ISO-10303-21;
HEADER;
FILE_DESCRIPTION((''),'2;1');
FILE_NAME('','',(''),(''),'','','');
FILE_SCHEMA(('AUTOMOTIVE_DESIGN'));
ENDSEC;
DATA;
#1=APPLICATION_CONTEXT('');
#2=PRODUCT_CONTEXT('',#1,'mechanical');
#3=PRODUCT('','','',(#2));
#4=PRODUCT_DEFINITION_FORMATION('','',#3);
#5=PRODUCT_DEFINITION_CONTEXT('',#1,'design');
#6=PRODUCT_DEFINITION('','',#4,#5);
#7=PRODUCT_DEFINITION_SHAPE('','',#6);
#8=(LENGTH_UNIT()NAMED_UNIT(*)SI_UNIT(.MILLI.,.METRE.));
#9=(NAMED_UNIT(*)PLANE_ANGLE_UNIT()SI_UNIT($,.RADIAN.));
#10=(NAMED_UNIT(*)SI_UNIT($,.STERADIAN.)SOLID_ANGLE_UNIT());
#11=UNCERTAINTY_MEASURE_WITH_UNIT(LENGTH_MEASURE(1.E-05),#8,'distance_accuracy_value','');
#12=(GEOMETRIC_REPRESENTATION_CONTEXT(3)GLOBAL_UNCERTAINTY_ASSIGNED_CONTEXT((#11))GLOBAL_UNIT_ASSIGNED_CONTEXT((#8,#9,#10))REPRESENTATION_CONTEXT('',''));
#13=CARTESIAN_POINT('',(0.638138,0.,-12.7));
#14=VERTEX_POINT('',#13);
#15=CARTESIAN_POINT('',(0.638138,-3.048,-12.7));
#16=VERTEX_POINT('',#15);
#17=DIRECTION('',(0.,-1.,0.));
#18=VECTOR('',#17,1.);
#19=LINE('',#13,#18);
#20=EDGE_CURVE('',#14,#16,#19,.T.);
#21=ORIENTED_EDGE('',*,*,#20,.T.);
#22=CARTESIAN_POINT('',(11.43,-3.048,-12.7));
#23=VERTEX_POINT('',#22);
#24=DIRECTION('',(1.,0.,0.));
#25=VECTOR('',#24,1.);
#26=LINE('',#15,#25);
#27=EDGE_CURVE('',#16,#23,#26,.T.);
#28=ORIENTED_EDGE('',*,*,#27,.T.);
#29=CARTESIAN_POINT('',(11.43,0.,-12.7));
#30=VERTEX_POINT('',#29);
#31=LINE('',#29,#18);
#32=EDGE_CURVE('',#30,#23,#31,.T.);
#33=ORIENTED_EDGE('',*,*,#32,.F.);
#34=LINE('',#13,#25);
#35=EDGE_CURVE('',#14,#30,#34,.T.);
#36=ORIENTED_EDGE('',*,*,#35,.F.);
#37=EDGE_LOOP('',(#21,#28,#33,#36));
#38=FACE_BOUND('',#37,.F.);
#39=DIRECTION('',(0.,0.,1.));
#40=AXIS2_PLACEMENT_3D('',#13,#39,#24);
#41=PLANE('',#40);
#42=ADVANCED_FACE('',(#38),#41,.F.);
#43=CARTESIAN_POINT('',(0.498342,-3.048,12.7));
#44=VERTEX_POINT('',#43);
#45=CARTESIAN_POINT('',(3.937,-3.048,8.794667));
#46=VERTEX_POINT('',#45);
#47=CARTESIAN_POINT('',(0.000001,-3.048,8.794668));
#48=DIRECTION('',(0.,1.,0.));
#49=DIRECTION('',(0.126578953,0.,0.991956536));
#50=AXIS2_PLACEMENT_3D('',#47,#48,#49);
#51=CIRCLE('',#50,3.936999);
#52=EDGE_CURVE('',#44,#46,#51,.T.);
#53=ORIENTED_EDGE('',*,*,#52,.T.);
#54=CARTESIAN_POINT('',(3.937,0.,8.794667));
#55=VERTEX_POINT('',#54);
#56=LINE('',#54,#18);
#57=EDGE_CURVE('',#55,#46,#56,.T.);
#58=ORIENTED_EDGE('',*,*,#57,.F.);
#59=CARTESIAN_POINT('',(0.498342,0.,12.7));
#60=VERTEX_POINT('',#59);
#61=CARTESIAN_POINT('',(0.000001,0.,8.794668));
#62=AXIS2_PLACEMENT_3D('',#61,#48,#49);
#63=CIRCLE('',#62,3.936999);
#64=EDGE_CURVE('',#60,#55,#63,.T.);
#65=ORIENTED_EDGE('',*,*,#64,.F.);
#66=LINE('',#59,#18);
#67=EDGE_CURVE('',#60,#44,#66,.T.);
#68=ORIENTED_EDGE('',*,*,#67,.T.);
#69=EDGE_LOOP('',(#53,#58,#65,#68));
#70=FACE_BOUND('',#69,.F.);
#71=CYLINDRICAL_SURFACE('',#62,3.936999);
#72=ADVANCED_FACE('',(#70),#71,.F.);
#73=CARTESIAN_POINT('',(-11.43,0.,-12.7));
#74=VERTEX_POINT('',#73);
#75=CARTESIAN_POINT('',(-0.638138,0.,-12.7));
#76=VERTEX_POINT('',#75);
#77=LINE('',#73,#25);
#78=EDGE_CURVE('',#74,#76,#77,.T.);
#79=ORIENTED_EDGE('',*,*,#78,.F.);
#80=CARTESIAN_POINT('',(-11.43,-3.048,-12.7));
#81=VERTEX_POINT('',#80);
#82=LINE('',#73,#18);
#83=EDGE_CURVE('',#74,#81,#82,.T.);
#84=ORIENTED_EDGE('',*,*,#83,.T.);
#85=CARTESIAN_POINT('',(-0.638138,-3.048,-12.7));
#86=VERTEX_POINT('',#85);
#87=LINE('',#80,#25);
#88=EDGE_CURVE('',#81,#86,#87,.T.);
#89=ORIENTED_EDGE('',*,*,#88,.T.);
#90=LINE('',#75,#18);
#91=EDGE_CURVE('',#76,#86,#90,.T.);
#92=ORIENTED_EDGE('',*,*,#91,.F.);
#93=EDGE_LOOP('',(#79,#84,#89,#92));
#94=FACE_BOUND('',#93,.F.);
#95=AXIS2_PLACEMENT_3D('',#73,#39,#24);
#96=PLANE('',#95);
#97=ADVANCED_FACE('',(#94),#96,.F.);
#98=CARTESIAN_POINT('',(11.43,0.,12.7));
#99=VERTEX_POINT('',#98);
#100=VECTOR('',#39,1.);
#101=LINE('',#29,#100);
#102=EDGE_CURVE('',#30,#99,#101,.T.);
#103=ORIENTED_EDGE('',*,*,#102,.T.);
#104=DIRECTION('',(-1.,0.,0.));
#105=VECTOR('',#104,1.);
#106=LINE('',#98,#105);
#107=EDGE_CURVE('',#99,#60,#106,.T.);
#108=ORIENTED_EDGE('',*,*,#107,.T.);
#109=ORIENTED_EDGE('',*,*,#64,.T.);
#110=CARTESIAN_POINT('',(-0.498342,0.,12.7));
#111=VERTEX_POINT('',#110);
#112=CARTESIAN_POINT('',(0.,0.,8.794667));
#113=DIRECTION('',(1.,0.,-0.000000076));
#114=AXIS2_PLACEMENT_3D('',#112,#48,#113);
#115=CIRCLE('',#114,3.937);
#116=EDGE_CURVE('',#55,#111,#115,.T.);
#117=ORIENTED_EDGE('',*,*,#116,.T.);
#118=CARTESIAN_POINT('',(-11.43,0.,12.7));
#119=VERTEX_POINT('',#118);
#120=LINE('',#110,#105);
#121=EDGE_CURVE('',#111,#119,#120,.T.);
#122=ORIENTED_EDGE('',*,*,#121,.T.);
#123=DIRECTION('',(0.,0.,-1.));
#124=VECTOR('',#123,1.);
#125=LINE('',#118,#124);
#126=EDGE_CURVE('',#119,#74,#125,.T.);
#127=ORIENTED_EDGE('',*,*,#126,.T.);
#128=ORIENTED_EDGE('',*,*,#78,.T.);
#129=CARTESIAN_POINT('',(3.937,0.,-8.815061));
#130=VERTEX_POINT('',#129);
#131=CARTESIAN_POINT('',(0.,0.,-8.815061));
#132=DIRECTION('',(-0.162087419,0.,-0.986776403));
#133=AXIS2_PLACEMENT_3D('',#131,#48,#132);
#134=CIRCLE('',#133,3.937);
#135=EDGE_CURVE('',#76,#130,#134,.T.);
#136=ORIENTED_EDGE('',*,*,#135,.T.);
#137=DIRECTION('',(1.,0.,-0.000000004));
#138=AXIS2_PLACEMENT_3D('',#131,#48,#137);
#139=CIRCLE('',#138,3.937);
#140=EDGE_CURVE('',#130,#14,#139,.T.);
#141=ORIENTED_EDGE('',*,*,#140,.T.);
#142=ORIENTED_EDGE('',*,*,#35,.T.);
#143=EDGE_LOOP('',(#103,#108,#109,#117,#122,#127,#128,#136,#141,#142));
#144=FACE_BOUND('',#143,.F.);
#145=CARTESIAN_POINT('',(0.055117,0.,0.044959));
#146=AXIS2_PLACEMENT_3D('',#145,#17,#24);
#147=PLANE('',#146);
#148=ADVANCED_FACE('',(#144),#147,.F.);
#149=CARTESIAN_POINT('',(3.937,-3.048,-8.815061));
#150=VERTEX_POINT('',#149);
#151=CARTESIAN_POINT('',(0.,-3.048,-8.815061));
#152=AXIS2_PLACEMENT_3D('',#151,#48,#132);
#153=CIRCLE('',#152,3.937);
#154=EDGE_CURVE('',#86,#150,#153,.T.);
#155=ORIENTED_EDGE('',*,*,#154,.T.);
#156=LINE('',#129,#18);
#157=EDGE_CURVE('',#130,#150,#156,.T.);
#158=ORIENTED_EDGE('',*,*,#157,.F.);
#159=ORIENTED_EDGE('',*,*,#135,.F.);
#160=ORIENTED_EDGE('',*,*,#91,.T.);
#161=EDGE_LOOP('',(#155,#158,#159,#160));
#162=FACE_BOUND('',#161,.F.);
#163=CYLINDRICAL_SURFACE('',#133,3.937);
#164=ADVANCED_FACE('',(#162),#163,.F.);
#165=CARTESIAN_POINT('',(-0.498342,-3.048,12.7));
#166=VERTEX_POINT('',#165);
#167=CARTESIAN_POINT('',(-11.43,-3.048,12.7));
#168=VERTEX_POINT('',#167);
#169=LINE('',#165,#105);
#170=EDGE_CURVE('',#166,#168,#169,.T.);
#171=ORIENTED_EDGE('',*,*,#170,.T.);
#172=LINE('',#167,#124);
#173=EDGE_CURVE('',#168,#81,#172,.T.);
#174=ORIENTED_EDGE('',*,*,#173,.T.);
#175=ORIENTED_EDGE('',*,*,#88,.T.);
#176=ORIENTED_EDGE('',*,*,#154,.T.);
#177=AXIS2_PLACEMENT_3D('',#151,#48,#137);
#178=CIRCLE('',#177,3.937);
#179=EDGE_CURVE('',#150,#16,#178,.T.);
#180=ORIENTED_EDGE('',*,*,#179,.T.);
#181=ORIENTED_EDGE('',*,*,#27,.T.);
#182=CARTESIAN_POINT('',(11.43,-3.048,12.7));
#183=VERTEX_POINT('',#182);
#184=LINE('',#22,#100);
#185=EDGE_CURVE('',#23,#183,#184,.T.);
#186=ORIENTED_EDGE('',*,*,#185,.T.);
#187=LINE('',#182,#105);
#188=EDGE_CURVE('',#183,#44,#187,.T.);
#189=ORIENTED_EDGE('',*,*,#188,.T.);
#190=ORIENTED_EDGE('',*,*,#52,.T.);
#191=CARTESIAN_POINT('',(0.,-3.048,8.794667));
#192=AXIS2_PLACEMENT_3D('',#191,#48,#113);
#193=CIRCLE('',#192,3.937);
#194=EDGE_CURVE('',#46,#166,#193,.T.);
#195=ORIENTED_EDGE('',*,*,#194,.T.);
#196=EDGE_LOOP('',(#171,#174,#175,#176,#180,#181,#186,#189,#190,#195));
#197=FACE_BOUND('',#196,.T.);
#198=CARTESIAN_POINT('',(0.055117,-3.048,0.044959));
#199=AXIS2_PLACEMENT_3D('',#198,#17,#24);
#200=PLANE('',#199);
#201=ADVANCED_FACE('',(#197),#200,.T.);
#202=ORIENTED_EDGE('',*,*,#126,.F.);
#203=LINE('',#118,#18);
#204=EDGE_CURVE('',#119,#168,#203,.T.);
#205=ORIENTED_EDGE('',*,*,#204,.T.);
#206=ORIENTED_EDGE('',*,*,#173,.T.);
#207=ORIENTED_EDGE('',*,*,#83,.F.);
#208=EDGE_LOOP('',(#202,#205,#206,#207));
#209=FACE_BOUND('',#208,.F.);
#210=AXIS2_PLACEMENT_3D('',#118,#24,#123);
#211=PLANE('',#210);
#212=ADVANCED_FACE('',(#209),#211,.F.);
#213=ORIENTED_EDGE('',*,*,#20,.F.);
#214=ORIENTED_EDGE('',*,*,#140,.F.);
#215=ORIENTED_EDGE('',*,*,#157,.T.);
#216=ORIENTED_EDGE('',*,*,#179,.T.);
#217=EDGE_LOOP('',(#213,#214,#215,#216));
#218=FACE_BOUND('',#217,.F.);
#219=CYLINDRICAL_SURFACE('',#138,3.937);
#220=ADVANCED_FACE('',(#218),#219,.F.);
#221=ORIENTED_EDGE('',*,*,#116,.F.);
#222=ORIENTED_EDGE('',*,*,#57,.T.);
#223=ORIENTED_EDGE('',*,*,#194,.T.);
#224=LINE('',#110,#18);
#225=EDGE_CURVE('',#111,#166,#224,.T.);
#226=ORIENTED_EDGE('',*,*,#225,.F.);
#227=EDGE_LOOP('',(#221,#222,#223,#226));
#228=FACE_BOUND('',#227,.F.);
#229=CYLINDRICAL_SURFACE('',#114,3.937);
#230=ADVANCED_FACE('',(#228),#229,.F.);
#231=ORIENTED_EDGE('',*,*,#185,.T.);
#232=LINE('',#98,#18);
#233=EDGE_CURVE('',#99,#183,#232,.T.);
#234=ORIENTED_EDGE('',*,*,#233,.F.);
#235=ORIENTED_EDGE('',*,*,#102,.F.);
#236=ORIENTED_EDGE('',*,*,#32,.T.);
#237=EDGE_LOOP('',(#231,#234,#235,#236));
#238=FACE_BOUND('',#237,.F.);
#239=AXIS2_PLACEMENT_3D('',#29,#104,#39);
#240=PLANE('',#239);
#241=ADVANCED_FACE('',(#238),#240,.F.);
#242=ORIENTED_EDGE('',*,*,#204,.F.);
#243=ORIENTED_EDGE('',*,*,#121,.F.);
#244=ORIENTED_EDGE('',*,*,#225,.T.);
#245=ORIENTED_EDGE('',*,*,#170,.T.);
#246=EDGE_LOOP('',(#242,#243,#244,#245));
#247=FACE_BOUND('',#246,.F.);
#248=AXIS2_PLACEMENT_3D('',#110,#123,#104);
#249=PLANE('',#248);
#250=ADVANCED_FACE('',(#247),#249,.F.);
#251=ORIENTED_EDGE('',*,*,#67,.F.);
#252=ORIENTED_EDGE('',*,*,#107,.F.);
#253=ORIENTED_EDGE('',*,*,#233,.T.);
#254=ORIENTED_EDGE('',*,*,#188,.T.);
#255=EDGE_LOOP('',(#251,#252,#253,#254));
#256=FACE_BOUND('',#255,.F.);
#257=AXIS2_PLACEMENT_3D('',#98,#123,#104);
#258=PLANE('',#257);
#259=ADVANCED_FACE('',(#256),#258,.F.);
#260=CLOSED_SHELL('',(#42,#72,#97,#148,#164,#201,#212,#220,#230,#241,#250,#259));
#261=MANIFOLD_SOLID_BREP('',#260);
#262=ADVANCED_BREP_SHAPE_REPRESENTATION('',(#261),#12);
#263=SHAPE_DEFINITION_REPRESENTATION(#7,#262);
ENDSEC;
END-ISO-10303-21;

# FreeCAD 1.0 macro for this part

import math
import FreeCAD as App
import Part
import Sketcher
Q = App.Units.Quantity

doc = App.newDocument("Part")
body = doc.addObject("PartDesign::Body", "Body")

# Sketch on XZ plane
sketch1 = body.newObject("Sketcher::SketchObject", "Sketch")
sketch1.AttachmentSupport = (doc.getObject("XZ_Plane"), [""])
sketch1.MapMode = "FlatFace"
sketch1.addGeometry([
    Part.LineSegment(App.Vector(11.4, -12.7, 0), App.Vector(11.4, 12.7, 0)),  # 0
    Part.LineSegment(App.Vector(11.4, 12.7, 0), App.Vector(0.5, 12.7, 0)),  # 1
    Part.ArcOfCircle(Part.Circle(App.Vector(0, 8.8, 0), App.Vector(0, 0, 1), 3.9), math.radians(0), math.radians(83)),  # 2
    Part.ArcOfCircle(Part.Circle(App.Vector(0, 8.8, 0), App.Vector(0, 0, 1), 3.9), math.radians(97), math.radians(360)),  # 3
    Part.LineSegment(App.Vector(-0.5, 12.7, 0), App.Vector(-11.4, 12.7, 0)),  # 4
    Part.LineSegment(App.Vector(-11.4, 12.7, 0), App.Vector(-11.4, -12.7, 0)),  # 5
    Part.LineSegment(App.Vector(-11.4, -12.7, 0), App.Vector(-0.6, -12.7, 0)),  # 6
    Part.ArcOfCircle(Part.Circle(App.Vector(0, -8.8, 0), App.Vector(0, 0, 1), 3.9), math.radians(0), math.radians(261)),  # 7
    Part.ArcOfCircle(Part.Circle(App.Vector(0, -8.8, 0), App.Vector(0, 0, 1), 3.9), math.radians(-81), math.radians(0)),  # 8
    Part.LineSegment(App.Vector(0.6, -12.7, 0), App.Vector(11.4, -12.7, 0)),  # 9
], False)
sketch1.addConstraint([
    Sketcher.Constraint("Coincident", 0, 2, 1, 1),
    Sketcher.Constraint("Coincident", 1, 2, 2, 2),
    Sketcher.Constraint("Tangent", 2, 1, 3, 2),
    Sketcher.Constraint("Coincident", 3, 1, 4, 1),
    Sketcher.Constraint("Coincident", 4, 2, 5, 1),
    Sketcher.Constraint("Coincident", 5, 2, 6, 1),
    Sketcher.Constraint("Coincident", 6, 2, 7, 2),
    Sketcher.Constraint("Tangent", 7, 1, 8, 2),
    Sketcher.Constraint("Coincident", 8, 1, 9, 1),
    Sketcher.Constraint("Coincident", 9, 2, 0, 1),
    Sketcher.Constraint("Vertical", 0),
    Sketcher.Constraint("Horizontal", 1),
    Sketcher.Constraint("Horizontal", 4),
    Sketcher.Constraint("Vertical", 5),
    Sketcher.Constraint("Horizontal", 6),
    Sketcher.Constraint("Horizontal", 9),
    Sketcher.Constraint("Equal", 2, 3),
    Sketcher.Constraint("Equal", 3, 7),
    Sketcher.Constraint("Equal", 7, 8),
    Sketcher.Constraint("Symmetric", 0, 2, 5, 2, -1, 1),
    Sketcher.Constraint("Symmetric", 1, 2, 3, 1, -2),
    Sketcher.Constraint("Symmetric", 6, 2, 8, 1, -2),
    Sketcher.Constraint("Horizontal", 3, 3, 2, 1),
    Sketcher.Constraint("Horizontal", 8, 3, 7, 1),
    Sketcher.Constraint("DistanceY", 0, 1, 0, 2, Q("1 in")),
    Sketcher.Constraint("Radius", 2, Q("0.155 in")),
    Sketcher.Constraint("DistanceX", -1, 1, 0, 2, Q("0.45 in")),
    Sketcher.Constraint("DistanceX", 1, 2, 1, 1, 10.931658),
    Sketcher.Constraint("DistanceX", 6, 1, 6, 2, 10.791862),
])
pad1 = body.newObject("PartDesign::Pad", "Pad")
pad1.Profile = sketch1
pad1.Length = Q("0.12 in")

doc.recompute()
